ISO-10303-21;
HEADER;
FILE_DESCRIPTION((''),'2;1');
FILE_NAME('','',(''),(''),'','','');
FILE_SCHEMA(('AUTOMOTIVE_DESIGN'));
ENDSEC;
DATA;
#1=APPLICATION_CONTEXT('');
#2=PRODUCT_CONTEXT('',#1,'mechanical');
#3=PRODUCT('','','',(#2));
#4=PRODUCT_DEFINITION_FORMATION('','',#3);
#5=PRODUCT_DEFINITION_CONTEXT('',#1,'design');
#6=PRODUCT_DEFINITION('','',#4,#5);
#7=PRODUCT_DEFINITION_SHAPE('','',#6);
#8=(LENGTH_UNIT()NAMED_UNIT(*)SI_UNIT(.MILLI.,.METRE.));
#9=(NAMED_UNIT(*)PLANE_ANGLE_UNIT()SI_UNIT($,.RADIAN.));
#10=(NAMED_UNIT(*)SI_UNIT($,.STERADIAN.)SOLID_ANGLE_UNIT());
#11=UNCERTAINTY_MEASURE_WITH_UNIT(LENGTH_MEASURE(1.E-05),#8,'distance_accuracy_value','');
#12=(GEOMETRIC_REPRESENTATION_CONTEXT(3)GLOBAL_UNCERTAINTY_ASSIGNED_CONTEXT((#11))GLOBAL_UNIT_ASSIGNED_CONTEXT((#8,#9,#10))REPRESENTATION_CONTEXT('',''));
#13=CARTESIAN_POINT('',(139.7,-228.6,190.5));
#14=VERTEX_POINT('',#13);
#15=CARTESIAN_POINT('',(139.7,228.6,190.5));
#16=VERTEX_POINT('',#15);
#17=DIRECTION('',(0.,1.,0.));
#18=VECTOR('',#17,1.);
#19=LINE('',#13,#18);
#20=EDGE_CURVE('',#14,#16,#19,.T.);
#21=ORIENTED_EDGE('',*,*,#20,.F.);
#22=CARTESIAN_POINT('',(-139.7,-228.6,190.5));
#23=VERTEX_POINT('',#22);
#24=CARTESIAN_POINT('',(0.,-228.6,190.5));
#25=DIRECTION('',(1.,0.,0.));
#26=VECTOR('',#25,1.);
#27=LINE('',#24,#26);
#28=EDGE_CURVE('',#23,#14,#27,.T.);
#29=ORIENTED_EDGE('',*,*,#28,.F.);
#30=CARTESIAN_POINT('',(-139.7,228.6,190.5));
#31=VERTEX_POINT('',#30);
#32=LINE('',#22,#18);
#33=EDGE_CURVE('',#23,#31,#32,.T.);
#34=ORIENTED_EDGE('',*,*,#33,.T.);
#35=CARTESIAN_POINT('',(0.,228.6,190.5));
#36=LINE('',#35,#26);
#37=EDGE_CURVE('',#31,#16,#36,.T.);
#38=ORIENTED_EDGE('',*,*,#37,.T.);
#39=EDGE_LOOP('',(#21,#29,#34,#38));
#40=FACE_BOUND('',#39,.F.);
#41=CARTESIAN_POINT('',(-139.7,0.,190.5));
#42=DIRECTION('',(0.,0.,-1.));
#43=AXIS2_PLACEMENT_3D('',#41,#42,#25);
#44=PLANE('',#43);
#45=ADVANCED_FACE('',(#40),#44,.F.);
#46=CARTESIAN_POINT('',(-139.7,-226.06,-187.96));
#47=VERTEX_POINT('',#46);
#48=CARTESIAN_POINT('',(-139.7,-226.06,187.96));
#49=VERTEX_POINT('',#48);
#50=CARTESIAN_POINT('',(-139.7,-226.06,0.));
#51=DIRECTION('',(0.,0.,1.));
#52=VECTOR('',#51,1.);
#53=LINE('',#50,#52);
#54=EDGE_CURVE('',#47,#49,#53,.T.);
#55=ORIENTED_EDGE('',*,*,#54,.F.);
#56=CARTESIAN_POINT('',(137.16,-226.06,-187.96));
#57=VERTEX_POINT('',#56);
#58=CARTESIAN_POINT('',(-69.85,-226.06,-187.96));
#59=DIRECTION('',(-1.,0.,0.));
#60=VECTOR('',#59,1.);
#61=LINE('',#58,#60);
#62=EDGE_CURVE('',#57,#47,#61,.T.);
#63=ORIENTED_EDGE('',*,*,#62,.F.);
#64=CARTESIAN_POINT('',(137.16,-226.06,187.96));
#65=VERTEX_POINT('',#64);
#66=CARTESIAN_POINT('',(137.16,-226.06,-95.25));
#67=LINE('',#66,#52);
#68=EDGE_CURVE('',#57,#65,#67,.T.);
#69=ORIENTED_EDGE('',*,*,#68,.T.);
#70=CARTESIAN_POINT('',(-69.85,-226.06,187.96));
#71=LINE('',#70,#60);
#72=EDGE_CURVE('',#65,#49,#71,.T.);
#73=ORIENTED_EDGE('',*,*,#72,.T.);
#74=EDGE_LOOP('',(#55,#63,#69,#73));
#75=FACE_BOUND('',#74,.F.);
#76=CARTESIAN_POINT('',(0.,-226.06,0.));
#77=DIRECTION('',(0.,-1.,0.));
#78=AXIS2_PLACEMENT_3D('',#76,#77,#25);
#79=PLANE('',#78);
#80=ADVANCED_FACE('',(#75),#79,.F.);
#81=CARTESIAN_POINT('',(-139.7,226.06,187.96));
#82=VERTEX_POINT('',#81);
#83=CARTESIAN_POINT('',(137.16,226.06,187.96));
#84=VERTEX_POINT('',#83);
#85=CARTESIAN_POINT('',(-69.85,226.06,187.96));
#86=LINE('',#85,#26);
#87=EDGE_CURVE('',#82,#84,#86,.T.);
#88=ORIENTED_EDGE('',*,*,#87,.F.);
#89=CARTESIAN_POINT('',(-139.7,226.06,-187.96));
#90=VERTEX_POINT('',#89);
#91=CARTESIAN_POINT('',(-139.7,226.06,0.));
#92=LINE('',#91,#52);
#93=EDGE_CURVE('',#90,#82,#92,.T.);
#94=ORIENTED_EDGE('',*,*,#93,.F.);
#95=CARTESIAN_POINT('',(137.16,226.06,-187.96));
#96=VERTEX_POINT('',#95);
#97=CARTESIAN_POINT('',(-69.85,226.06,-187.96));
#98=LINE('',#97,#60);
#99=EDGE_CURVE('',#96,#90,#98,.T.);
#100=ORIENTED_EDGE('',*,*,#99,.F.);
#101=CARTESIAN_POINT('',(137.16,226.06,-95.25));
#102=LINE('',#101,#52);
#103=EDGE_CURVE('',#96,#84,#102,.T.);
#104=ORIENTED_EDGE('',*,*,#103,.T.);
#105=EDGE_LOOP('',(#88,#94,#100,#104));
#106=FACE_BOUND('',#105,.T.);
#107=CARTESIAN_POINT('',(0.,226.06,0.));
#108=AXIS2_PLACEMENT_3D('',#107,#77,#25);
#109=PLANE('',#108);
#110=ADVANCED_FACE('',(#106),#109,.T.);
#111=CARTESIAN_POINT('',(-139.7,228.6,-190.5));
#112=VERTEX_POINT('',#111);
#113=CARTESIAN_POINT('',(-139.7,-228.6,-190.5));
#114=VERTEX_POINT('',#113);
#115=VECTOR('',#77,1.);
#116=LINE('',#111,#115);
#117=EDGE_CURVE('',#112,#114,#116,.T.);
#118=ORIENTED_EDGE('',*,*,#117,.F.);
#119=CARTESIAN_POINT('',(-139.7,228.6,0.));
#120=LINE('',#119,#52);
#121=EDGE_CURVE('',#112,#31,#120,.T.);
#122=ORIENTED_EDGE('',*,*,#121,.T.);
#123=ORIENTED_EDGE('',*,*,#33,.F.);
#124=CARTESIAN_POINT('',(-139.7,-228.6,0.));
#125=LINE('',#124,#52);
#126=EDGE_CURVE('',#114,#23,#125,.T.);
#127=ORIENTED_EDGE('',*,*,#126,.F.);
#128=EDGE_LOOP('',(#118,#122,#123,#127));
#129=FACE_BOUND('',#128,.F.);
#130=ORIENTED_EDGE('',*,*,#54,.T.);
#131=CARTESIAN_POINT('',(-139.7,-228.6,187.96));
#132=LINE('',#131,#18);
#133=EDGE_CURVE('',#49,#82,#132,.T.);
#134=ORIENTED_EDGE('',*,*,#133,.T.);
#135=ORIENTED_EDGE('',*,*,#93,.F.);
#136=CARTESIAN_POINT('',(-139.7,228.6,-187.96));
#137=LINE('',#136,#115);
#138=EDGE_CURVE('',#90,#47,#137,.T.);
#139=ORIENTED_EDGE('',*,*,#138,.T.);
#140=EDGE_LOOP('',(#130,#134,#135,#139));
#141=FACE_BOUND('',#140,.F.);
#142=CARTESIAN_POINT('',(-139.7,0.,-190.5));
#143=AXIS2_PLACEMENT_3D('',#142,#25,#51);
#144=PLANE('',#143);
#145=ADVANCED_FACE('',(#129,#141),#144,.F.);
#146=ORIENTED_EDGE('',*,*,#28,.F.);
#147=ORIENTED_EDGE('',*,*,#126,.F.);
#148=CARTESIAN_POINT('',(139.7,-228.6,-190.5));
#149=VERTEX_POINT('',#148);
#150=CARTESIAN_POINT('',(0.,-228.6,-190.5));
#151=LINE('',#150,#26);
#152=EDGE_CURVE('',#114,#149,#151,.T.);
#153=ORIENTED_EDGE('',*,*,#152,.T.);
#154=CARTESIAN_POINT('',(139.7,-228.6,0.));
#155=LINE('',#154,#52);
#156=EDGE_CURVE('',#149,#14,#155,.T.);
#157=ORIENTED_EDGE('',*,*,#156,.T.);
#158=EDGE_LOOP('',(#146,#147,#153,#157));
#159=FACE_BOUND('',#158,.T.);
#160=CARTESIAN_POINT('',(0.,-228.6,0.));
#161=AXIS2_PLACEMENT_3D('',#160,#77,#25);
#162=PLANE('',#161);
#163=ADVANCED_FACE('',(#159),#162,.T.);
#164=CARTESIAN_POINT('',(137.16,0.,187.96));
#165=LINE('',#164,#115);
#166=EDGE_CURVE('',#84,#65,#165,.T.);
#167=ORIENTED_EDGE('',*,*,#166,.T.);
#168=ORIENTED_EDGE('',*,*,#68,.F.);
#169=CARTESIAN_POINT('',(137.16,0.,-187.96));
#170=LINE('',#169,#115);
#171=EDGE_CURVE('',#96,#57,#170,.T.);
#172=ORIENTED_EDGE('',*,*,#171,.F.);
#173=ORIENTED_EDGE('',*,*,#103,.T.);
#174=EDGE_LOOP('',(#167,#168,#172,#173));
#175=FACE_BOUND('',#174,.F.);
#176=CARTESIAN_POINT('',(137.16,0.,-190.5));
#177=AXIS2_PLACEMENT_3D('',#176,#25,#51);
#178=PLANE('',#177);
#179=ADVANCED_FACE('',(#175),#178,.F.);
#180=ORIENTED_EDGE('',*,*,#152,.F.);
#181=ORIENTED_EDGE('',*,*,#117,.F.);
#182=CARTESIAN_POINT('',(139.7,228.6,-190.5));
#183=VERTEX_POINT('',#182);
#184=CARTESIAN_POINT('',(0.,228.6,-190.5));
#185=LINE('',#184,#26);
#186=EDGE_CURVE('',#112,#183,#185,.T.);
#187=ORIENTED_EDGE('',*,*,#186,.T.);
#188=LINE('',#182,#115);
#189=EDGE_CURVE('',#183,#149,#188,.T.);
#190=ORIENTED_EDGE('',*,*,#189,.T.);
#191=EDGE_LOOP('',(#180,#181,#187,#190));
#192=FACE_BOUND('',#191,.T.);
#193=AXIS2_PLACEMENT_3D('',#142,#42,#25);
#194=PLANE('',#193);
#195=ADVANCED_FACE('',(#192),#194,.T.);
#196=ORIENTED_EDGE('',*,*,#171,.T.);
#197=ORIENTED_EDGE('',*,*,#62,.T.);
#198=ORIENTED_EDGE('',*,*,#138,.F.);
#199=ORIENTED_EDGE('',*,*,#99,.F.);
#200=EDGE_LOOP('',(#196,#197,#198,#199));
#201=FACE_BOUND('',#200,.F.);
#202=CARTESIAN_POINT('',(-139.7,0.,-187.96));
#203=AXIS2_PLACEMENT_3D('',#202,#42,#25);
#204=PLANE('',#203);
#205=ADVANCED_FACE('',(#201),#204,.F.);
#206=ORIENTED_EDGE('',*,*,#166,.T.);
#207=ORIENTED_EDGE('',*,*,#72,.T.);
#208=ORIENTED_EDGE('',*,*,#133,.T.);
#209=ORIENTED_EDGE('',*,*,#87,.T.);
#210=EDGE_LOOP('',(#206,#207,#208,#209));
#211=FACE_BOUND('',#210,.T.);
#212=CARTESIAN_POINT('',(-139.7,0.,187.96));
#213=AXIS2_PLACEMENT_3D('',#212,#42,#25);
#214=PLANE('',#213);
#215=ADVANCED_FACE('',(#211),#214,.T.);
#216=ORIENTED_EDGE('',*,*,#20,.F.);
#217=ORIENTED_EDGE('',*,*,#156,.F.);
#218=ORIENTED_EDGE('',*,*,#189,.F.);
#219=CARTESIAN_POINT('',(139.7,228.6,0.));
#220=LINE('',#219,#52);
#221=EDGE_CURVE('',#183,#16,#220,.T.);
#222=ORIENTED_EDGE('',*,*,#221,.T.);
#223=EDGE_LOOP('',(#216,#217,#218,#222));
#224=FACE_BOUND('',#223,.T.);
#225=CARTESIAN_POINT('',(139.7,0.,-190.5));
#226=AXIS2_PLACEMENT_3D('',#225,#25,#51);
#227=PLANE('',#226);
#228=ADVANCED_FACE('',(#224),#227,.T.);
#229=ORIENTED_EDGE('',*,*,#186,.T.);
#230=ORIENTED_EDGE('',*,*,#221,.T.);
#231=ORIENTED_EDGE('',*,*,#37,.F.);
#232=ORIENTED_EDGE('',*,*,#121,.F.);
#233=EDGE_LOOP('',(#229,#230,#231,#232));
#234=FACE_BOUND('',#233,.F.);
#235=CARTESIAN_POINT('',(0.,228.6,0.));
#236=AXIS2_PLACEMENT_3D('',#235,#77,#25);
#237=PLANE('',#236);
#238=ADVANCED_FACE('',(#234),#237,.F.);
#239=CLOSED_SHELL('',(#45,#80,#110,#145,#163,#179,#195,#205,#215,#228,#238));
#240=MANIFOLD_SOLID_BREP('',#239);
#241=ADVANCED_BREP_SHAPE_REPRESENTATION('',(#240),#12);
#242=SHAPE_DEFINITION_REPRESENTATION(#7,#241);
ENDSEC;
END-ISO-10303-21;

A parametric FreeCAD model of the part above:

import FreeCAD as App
import Part
import Sketcher

V = App.Vector
Q = App.Units.Quantity


def faces_at(feature, points):
    """Names of the faces that lie closest to the given points."""
    faces = feature.Shape.Faces
    near = lambda p: min(range(len(faces)), key=lambda i: faces[i].distToShape(Part.Vertex(*p))[0])
    return sorted({f"Face{near(p) + 1}" for p in points})

doc = App.newDocument("Part")
body = doc.addObject("PartDesign::Body", "Body")

sketch1 = doc.addObject("Sketcher::SketchObject", "Sketch")
body.addObject(sketch1)
sketch1.AttachmentSupport = (doc.XZ_Plane, [""])
sketch1.MapMode = "FlatFace"
sketch1.addGeometry(Part.LineSegment(V(-140, 190, 0), V(-140, -190, 0)), False)
sketch1.addGeometry(Part.LineSegment(V(-140, -190, 0), V(140, -190, 0)), False)
sketch1.addGeometry(Part.LineSegment(V(140, -190, 0), V(140, 190, 0)), False)
sketch1.addGeometry(Part.LineSegment(V(140, 190, 0), V(-140, 190, 0)), False)
sketch1.addConstraint(Sketcher.Constraint("Coincident", 0, 2, 1, 1))
sketch1.addConstraint(Sketcher.Constraint("Coincident", 1, 2, 2, 1))
sketch1.addConstraint(Sketcher.Constraint("Coincident", 2, 2, 3, 1))
sketch1.addConstraint(Sketcher.Constraint("Coincident", 3, 2, 0, 1))
sketch1.addConstraint(Sketcher.Constraint("Vertical", 0))
sketch1.addConstraint(Sketcher.Constraint("Horizontal", 1))
sketch1.addConstraint(Sketcher.Constraint("Vertical", 2))
sketch1.addConstraint(Sketcher.Constraint("Horizontal", 3))
sketch1.addConstraint(Sketcher.Constraint("Symmetric", 0, 2, 2, 2, -1, 1))
sketch1.addConstraint(Sketcher.Constraint("DistanceX", 1, 1, 1, 2, Q("11 in")))
sketch1.addConstraint(Sketcher.Constraint("DistanceY", 0, 2, 0, 1, Q("15 in")))
pad1 = doc.addObject("PartDesign::Pad", "Pad")
body.addObject(pad1)
pad1.Profile = sketch1
pad1.Length = Q("18 in")
pad1.Midplane = True
doc.recompute()

thickness = doc.addObject("PartDesign::Thickness", "Thickness")
body.addObject(thickness)
thickness.Base = (pad1, faces_at(pad1, [(-139.7, 0, 0)]))
thickness.Value = Q("0.1 in")
thickness.Reversed = True
thickness.Join = "Arc"

doc.recompute()
